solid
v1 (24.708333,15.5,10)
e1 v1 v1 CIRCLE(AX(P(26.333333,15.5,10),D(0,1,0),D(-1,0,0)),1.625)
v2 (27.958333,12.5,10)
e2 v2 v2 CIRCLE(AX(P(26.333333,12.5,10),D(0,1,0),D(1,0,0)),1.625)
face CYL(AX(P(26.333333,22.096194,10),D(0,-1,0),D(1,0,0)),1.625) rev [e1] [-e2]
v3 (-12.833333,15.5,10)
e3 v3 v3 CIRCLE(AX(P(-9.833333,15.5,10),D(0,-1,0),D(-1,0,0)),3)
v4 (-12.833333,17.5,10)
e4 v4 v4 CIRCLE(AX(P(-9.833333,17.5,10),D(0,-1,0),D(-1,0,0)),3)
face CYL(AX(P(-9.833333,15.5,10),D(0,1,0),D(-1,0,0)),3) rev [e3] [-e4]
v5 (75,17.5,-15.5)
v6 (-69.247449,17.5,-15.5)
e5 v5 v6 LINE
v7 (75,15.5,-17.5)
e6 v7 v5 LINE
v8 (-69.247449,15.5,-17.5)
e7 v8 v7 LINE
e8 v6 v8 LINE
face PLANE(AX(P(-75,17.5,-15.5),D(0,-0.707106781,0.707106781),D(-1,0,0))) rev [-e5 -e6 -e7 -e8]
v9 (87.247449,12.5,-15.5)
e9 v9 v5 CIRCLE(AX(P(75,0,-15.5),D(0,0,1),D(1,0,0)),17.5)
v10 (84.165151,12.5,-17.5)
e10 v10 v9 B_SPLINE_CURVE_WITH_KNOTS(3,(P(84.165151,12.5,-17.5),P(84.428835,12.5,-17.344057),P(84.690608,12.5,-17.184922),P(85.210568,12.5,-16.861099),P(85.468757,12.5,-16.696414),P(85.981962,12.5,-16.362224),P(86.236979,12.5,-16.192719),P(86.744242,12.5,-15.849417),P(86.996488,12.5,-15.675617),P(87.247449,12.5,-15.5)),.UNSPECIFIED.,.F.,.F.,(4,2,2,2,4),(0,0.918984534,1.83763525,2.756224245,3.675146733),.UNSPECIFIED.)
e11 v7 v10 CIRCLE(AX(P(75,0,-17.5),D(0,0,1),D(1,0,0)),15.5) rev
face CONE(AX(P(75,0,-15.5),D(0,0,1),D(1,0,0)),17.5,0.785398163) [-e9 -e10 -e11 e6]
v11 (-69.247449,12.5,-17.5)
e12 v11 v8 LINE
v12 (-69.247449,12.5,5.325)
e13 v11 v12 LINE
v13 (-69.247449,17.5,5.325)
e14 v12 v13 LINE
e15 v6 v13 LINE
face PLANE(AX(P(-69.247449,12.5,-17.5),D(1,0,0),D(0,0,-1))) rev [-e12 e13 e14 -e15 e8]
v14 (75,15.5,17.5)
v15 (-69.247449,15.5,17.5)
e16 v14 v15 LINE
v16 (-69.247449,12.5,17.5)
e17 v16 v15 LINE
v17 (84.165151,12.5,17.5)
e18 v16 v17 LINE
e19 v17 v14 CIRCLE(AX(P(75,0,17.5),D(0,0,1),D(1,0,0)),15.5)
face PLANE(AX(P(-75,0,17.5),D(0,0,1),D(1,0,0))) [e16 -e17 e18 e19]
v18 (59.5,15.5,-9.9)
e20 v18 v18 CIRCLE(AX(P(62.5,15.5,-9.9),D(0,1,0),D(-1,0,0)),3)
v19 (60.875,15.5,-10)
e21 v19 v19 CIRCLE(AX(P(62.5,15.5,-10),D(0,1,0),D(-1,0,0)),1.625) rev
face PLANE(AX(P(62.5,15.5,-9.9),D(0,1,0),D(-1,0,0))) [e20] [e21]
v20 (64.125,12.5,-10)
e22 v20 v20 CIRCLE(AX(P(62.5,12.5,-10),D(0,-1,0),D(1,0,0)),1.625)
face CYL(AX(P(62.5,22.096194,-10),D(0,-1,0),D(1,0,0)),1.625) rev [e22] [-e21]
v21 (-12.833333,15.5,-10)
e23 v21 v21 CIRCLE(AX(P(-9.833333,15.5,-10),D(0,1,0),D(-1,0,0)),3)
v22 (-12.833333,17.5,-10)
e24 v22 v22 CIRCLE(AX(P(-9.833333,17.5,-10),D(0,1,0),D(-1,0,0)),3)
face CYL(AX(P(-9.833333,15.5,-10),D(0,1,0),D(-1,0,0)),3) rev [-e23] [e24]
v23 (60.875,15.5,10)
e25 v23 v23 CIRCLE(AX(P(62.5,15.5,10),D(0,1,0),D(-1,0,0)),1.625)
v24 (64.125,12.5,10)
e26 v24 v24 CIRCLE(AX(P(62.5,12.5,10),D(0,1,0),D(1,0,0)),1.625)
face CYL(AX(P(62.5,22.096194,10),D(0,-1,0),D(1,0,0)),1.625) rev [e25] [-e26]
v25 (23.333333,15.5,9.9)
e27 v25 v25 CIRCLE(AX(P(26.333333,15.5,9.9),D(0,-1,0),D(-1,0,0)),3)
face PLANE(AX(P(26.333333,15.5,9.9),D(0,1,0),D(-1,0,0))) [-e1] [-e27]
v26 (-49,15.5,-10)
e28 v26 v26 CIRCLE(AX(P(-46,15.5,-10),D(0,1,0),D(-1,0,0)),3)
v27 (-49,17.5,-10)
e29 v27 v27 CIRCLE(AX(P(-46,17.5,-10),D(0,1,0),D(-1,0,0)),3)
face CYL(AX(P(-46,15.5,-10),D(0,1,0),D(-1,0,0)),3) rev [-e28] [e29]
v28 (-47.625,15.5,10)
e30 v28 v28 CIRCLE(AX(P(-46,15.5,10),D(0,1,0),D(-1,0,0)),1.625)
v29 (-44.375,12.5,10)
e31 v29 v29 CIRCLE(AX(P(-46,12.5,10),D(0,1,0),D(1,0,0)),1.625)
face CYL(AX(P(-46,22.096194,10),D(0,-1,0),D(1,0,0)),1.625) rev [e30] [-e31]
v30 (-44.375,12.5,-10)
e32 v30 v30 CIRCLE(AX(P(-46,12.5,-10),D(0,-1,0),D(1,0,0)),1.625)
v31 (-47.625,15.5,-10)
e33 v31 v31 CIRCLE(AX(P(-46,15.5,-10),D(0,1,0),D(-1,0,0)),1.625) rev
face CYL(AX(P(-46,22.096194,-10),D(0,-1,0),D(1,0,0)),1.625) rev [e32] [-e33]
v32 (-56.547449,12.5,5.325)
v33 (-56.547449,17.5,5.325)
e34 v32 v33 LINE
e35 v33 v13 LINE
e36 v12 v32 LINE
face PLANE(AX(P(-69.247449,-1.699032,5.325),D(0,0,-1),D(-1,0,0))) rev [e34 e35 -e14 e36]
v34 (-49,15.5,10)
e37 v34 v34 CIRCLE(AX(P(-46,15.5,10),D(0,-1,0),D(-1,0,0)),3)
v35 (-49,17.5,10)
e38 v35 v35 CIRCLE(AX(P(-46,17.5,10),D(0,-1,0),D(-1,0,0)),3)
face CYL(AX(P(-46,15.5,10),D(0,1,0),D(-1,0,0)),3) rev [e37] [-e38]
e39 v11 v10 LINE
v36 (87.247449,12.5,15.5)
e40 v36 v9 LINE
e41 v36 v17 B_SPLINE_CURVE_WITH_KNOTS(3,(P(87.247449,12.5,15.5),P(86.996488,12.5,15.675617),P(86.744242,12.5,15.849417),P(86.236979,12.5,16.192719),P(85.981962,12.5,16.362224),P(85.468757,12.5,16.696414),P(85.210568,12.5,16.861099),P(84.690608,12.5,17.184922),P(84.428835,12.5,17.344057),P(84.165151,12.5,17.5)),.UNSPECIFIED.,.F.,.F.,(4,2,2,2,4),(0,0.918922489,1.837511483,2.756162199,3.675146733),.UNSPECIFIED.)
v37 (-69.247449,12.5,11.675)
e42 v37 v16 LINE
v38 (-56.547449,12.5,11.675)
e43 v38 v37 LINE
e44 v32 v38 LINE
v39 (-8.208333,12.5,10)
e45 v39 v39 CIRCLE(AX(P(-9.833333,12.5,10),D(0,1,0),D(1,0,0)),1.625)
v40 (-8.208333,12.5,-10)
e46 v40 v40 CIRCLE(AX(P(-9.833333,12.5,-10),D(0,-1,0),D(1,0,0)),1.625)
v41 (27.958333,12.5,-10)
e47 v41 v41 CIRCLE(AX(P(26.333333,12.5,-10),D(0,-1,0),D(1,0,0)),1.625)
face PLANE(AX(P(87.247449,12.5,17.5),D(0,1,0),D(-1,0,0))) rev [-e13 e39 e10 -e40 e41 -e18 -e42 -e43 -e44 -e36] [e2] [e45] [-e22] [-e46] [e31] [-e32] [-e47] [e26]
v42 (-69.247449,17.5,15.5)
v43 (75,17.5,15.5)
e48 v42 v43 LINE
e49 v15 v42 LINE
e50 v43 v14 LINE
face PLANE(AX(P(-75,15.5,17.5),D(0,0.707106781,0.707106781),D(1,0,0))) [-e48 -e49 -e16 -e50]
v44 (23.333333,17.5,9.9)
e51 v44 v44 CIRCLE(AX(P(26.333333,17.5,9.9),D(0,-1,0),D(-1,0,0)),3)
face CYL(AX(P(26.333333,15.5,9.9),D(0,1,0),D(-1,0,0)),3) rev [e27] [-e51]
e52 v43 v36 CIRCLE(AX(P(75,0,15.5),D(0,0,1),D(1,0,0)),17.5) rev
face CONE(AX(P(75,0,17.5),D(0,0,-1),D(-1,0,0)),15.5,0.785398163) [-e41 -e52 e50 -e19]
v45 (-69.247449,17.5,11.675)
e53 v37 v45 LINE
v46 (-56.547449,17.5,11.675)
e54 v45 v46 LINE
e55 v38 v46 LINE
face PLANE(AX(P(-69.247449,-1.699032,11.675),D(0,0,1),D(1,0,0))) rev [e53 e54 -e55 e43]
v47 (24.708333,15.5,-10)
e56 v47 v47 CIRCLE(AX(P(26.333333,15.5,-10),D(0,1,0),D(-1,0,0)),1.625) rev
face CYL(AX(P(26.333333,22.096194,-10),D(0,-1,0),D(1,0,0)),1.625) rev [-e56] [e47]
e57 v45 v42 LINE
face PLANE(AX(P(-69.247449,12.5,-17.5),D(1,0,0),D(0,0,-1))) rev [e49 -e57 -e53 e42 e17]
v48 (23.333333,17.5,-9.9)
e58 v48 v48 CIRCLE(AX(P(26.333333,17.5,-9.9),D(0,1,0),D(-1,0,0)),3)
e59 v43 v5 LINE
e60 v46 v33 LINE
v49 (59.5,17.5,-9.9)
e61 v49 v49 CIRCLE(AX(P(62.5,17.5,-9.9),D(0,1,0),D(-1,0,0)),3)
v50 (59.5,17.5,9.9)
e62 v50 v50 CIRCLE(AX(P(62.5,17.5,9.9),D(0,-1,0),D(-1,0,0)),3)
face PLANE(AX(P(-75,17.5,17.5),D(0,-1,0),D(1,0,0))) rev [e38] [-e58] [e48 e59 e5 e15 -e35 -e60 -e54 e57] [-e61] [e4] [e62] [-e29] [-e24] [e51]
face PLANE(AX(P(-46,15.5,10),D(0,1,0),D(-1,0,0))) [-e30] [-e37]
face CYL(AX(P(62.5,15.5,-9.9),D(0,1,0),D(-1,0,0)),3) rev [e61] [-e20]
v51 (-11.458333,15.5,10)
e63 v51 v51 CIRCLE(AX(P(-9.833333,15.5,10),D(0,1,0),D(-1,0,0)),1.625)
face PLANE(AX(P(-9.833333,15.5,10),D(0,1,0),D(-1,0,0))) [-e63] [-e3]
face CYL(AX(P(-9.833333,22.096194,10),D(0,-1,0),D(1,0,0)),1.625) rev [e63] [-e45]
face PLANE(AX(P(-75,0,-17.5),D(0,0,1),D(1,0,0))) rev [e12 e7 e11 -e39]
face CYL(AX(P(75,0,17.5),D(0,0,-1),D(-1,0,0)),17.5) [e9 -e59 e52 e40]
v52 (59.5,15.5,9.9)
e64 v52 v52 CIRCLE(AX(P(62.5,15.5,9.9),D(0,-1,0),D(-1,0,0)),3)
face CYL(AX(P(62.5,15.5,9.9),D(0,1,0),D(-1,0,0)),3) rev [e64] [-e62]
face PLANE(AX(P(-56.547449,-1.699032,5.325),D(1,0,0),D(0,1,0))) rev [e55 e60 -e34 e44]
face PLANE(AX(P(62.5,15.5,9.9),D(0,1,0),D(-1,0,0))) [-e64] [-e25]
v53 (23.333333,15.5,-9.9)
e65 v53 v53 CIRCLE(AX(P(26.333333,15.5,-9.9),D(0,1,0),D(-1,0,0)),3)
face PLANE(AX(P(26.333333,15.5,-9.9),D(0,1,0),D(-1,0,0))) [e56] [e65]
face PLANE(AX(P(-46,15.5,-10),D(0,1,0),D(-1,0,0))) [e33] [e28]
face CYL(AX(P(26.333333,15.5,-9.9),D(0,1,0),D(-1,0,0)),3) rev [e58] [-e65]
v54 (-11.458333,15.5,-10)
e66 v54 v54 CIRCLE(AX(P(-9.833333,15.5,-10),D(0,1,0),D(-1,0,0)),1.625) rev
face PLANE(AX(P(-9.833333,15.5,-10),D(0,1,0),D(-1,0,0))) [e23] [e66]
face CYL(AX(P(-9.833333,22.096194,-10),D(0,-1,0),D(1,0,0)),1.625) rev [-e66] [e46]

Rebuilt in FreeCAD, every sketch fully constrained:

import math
import FreeCAD as App
import Part
import Sketcher
from FreeCAD import Vector
Q = App.Units.Quantity


def edges_at(feature, points):
    """Names of the edges that pass closest to the given points."""
    edges = feature.Shape.Edges
    near = lambda p: min(range(len(edges)), key=lambda i: edges[i].distToShape(Part.Vertex(*p))[0])
    return sorted({f"Edge{near(p) + 1}" for p in points})

doc = App.newDocument("Part")
body = doc.addObject("PartDesign::Body", "Body")

sketch1 = body.newObject("Sketcher::SketchObject", "Sketch")
sketch1.AttachmentSupport = (doc.getObject("XY_Plane"), [""])
sketch1.MapMode = "FlatFace"
sketch1.addGeometry(Part.LineSegment(Vector(75, 17.5, 0), Vector(-75, 17.5, 0)), False)
sketch1.addGeometry(Part.ArcOfCircle(Part.Circle(Vector(-75, 0, 0), Vector(0, 0, 1), 17.5), math.radians(90), math.radians(134.415309)), False)
sketch1.addGeometry(Part.LineSegment(Vector(-87.247449, 12.5, 0), Vector(87.247449, 12.5, 0)), False)
sketch1.addGeometry(Part.ArcOfCircle(Part.Circle(Vector(75, 0, 0), Vector(0, 0, 1), 17.5), math.radians(45.584691), math.radians(90)), False)
sketch1.addConstraint(Sketcher.Constraint("Tangent", 0, 2, 1, 1))
sketch1.addConstraint(Sketcher.Constraint("Coincident", 1, 2, 2, 1))
sketch1.addConstraint(Sketcher.Constraint("Coincident", 2, 2, 3, 1))
sketch1.addConstraint(Sketcher.Constraint("Tangent", 3, 2, 0, 1))
sketch1.addConstraint(Sketcher.Constraint("Horizontal", 0))
sketch1.addConstraint(Sketcher.Constraint("Horizontal", 2))
sketch1.addConstraint(Sketcher.Constraint("Equal", 1, 3))
sketch1.addConstraint(Sketcher.Constraint("Symmetric", 1, 3, 3, 3, -1, 1))
sketch1.addConstraint(Sketcher.Constraint("Radius", 1, Q("17.5 mm")))
sketch1.addConstraint(Sketcher.Constraint("DistanceX", 0, 2, 0, 1, Q("150 mm")))
sketch1.addConstraint(Sketcher.Constraint("DistanceY", 1, 2, 0, 2, Q("5 mm")))
pad1 = body.newObject("PartDesign::Pad", "Pad")
pad1.Profile = sketch1
pad1.Length = 35
pad1.Midplane = True

sketch2 = body.newObject("Sketcher::SketchObject", "Sketch001")
sketch2.AttachmentSupport = (doc.getObject("XY_Plane"), [""])
sketch2.MapMode = "FlatFace"
sketch2.addGeometry(Part.LineSegment(Vector(-87.247449, 17.5, 0), Vector(-87.247449, 12.5, 0)), False)
sketch2.addGeometry(Part.LineSegment(Vector(-87.247449, 12.5, 0), Vector(-69.247449, 12.5, 0)), False)
sketch2.addGeometry(Part.LineSegment(Vector(-69.247449, 12.5, 0), Vector(-69.247449, 17.5, 0)), False)
sketch2.addGeometry(Part.LineSegment(Vector(-69.247449, 17.5, 0), Vector(-87.247449, 17.5, 0)), False)
sketch2.addConstraint(Sketcher.Constraint("Coincident", 0, 2, 1, 1))
sketch2.addConstraint(Sketcher.Constraint("Coincident", 1, 2, 2, 1))
sketch2.addConstraint(Sketcher.Constraint("Coincident", 2, 2, 3, 1))
sketch2.addConstraint(Sketcher.Constraint("Coincident", 3, 2, 0, 1))
sketch2.addConstraint(Sketcher.Constraint("Vertical", 0))
sketch2.addConstraint(Sketcher.Constraint("Horizontal", 1))
sketch2.addConstraint(Sketcher.Constraint("Vertical", 2))
sketch2.addConstraint(Sketcher.Constraint("Horizontal", 3))
sketch2.addConstraint(Sketcher.Constraint("DistanceX", 1, 1, 1, 2, Q("18 mm")))
sketch2.addConstraint(Sketcher.Constraint("DistanceY", 0, 2, 0, 1, Q("5 mm")))
sketch2.addConstraint(Sketcher.Constraint("DistanceY", -1, 1, 0, 2, Q("12.5 mm")))
sketch2.addConstraint(Sketcher.Constraint("DistanceX", 0, 2, -1, 1, Q("87.247449 mm")))
pocket1 = body.newObject("PartDesign::Pocket", "Pocket")
pocket1.Profile = sketch2
pocket1.Length = 35
pocket1.Midplane = True

sketch3 = body.newObject("Sketcher::SketchObject", "Sketch002")
sketch3.AttachmentSupport = (doc.getObject("XZ_Plane"), [""])
sketch3.MapMode = "FlatFace"
sketch3.AttachmentOffset = App.Placement(Vector(0, 0, -12.5), App.Rotation())
sketch3.addGeometry(Part.Circle(Vector(-46, -10, 0), Vector(0, 0, 1), 1.625), False)
sketch3.addGeometry(Part.Circle(Vector(-9.833333, -10, 0), Vector(0, 0, 1), 1.625), False)
sketch3.addGeometry(Part.Circle(Vector(26.333333, -10, 0), Vector(0, 0, 1), 1.625), False)
sketch3.addGeometry(Part.Circle(Vector(62.5, -10, 0), Vector(0, 0, 1), 1.625), False)
sketch3.addConstraint(Sketcher.Constraint("Equal", 0, 1))
sketch3.addConstraint(Sketcher.Constraint("Equal", 1, 2))
sketch3.addConstraint(Sketcher.Constraint("Equal", 2, 3))
sketch3.addConstraint(Sketcher.Constraint("Horizontal", 0, 3, 1, 3))
sketch3.addConstraint(Sketcher.Constraint("Horizontal", 1, 3, 2, 3))
sketch3.addConstraint(Sketcher.Constraint("Horizontal", 2, 3, 3, 3))
sketch3.addConstraint(Sketcher.Constraint("Diameter", 0, Q("3.25 mm")))
sketch3.addConstraint(Sketcher.Constraint("DistanceX", 0, 3, -1, 1, Q("46 mm")))
sketch3.addConstraint(Sketcher.Constraint("DistanceY", 0, 3, -1, 1, Q("10 mm")))
sketch3.addConstraint(Sketcher.Constraint("DistanceX", -1, 1, 3, 3, Q("62.5 mm")))
sketch3.addConstraint(Sketcher.Constraint("DistanceX", 1, 3, -1, 1, Q("9.833333 mm")))
sketch3.addConstraint(Sketcher.Constraint("DistanceX", -1, 1, 2, 3, Q("26.333333 mm")))
pocket2 = body.newObject("PartDesign::Pocket", "Pocket001")
pocket2.Profile = sketch3
pocket2.Length = 5

sketch4 = body.newObject("Sketcher::SketchObject", "Sketch003")
sketch4.AttachmentSupport = (doc.getObject("XZ_Plane"), [""])
sketch4.MapMode = "FlatFace"
sketch4.AttachmentOffset = App.Placement(Vector(0, 0, -17.5), App.Rotation())
sketch4.addGeometry(Part.Circle(Vector(62.5, -9.9, 0), Vector(0, 0, 1), 3), False)
sketch4.addGeometry(Part.Circle(Vector(26.333333, -9.9, 0), Vector(0, 0, 1), 3), False)
sketch4.addGeometry(Part.Circle(Vector(-9.833333, -10, 0), Vector(0, 0, 1), 3), False)
sketch4.addGeometry(Part.Circle(Vector(-46, -10, 0), Vector(0, 0, 1), 3), False)
sketch4.addConstraint(Sketcher.Constraint("Equal", 0, 1))
sketch4.addConstraint(Sketcher.Constraint("Equal", 1, 2))
sketch4.addConstraint(Sketcher.Constraint("Equal", 2, 3))
sketch4.addConstraint(Sketcher.Constraint("Horizontal", 0, 3, 1, 3))
sketch4.addConstraint(Sketcher.Constraint("Horizontal", 2, 3, 3, 3))
sketch4.addConstraint(Sketcher.Constraint("Diameter", 0, Q("6 mm")))
sketch4.addConstraint(Sketcher.Constraint("DistanceY", 2, 3, -1, 1, Q("10 mm")))
sketch4.addConstraint(Sketcher.Constraint("DistanceX", 3, 3, -1, 1, Q("46 mm")))
sketch4.addConstraint(Sketcher.Constraint("DistanceX", -1, 1, 0, 3, Q("62.5 mm")))
sketch4.addConstraint(Sketcher.Constraint("DistanceY", 0, 3, -1, 1, Q("9.9 mm")))
sketch4.addConstraint(Sketcher.Constraint("DistanceX", -1, 1, 1, 3, Q("26.333333 mm")))
sketch4.addConstraint(Sketcher.Constraint("DistanceX", 2, 3, -1, 1, Q("9.833333 mm")))
pocket3 = body.newObject("PartDesign::Pocket", "Pocket002")
pocket3.Profile = sketch4
pocket3.Length = 2
pocket3.Reversed = True
doc.recompute()

mirrored = body.newObject("PartDesign::Mirrored", "Mirrored")
mirrored.Originals = [pocket2, pocket3]
mirrored.MirrorPlane = (doc.getObject("XY_Plane"), [""])
body.Tip = mirrored
doc.recompute()

chamfer = body.newObject("PartDesign::Chamfer", "Chamfer")
chamfer.Base = (mirrored, edges_at(mirrored, [
    (81.614, 16.202, 17.5),
    (2.876, 17.5, 17.5),
    (2.876, 17.5, -17.5),
    (81.614, 16.202, -17.5),
]))
chamfer.Size = 2

sketch5 = body.newObject("Sketcher::SketchObject", "Sketch004")
sketch5.AttachmentSupport = (doc.getObject("XZ_Plane"), [""])
sketch5.MapMode = "FlatFace"
sketch5.AttachmentOffset = App.Placement(Vector(0, 0, -17.5), App.Rotation())
sketch5.addGeometry(Part.LineSegment(Vector(-69.247449, 5.325, 0), Vector(-69.247449, 11.675, 0)), False)
sketch5.addGeometry(Part.LineSegment(Vector(-69.247449, 11.675, 0), Vector(-56.547449, 11.675, 0)), False)
sketch5.addGeometry(Part.LineSegment(Vector(-56.547449, 11.675, 0), Vector(-56.547449, 5.325, 0)), False)
sketch5.addGeometry(Part.LineSegment(Vector(-56.547449, 5.325, 0), Vector(-69.247449, 5.325, 0)), False)
sketch5.addConstraint(Sketcher.Constraint("Coincident", 0, 2, 1, 1))
sketch5.addConstraint(Sketcher.Constraint("Coincident", 1, 2, 2, 1))
sketch5.addConstraint(Sketcher.Constraint("Coincident", 2, 2, 3, 1))
sketch5.addConstraint(Sketcher.Constraint("Coincident", 3, 2, 0, 1))
sketch5.addConstraint(Sketcher.Constraint("Vertical", 0))
sketch5.addConstraint(Sketcher.Constraint("Horizontal", 1))
sketch5.addConstraint(Sketcher.Constraint("Vertical", 2))
sketch5.addConstraint(Sketcher.Constraint("Horizontal", 3))
sketch5.addConstraint(Sketcher.Constraint("DistanceX", 1, 1, 1, 2, Q("12.7 mm")))
sketch5.addConstraint(Sketcher.Constraint("DistanceY", 0, 1, 0, 2, Q("6.35 mm")))
sketch5.addConstraint(Sketcher.Constraint("DistanceY", -1, 1, 0, 2, Q("11.675 mm")))
sketch5.addConstraint(Sketcher.Constraint("DistanceX", 0, 2, -1, 1, Q("69.247449 mm")))
pocket4 = body.newObject("PartDesign::Pocket", "Pocket003")
pocket4.Profile = sketch5
pocket4.Length = 5
pocket4.Reversed = True

doc.recompute()
